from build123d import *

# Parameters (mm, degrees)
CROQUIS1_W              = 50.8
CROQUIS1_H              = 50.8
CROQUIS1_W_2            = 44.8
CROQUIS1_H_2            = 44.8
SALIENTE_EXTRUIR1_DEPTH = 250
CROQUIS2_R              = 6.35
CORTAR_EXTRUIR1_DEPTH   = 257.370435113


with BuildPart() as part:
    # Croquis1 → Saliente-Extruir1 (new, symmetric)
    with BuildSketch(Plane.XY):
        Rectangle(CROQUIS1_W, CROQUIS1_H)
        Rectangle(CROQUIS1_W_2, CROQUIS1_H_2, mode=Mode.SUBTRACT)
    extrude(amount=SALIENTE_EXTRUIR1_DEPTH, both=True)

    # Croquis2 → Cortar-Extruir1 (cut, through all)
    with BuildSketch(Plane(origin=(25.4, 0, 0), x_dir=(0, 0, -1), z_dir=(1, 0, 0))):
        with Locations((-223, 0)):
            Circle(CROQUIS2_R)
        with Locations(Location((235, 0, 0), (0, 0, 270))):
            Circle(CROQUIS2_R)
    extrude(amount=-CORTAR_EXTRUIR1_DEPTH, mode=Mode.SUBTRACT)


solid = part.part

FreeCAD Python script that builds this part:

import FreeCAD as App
import Part
import Sketcher
Q = App.Units.Quantity

doc = App.newDocument("Part")
body = doc.addObject("PartDesign::Body", "Body")

sketch1 = body.newObject("Sketcher::SketchObject", "Sketch")
sketch1.AttachmentSupport = (doc.getObject("XY_Plane"), [""])
sketch1.MapMode = "FlatFace"
sketch1.addGeometry(Part.LineSegment(App.Vector(-25, 25, 0), App.Vector(-25, -25, 0)), False)
sketch1.addGeometry(Part.LineSegment(App.Vector(-25, -25, 0), App.Vector(25, -25, 0)), False)
sketch1.addGeometry(Part.LineSegment(App.Vector(25, -25, 0), App.Vector(25, 25, 0)), False)
sketch1.addGeometry(Part.LineSegment(App.Vector(25, 25, 0), App.Vector(-25, 25, 0)), False)
sketch1.addGeometry(Part.LineSegment(App.Vector(22, -22, 0), App.Vector(-22, -22, 0)), False)
sketch1.addGeometry(Part.LineSegment(App.Vector(-22, -22, 0), App.Vector(-22, 22, 0)), False)
sketch1.addGeometry(Part.LineSegment(App.Vector(-22, 22, 0), App.Vector(22, 22, 0)), False)
sketch1.addGeometry(Part.LineSegment(App.Vector(22, 22, 0), App.Vector(22, -22, 0)), False)
sketch1.addConstraint(Sketcher.Constraint("Coincident", 0, 2, 1, 1))
sketch1.addConstraint(Sketcher.Constraint("Coincident", 1, 2, 2, 1))
sketch1.addConstraint(Sketcher.Constraint("Coincident", 2, 2, 3, 1))
sketch1.addConstraint(Sketcher.Constraint("Coincident", 3, 2, 0, 1))
sketch1.addConstraint(Sketcher.Constraint("Coincident", 4, 2, 5, 1))
sketch1.addConstraint(Sketcher.Constraint("Coincident", 5, 2, 6, 1))
sketch1.addConstraint(Sketcher.Constraint("Coincident", 6, 2, 7, 1))
sketch1.addConstraint(Sketcher.Constraint("Coincident", 7, 2, 4, 1))
sketch1.addConstraint(Sketcher.Constraint("Vertical", 0))
sketch1.addConstraint(Sketcher.Constraint("Horizontal", 1))
sketch1.addConstraint(Sketcher.Constraint("Vertical", 2))
sketch1.addConstraint(Sketcher.Constraint("Horizontal", 3))
sketch1.addConstraint(Sketcher.Constraint("Horizontal", 4))
sketch1.addConstraint(Sketcher.Constraint("Vertical", 5))
sketch1.addConstraint(Sketcher.Constraint("Horizontal", 6))
sketch1.addConstraint(Sketcher.Constraint("Vertical", 7))
sketch1.addConstraint(Sketcher.Constraint("Symmetric", 0, 2, 2, 2, -1, 1))
sketch1.addConstraint(Sketcher.Constraint("Symmetric", 4, 2, 6, 2, -1, 1))
sketch1.addConstraint(Sketcher.Constraint("Equal", 3, 0))
sketch1.addConstraint(Sketcher.Constraint("Equal", 6, 5))
sketch1.addConstraint(Sketcher.Constraint("DistanceX", 1, 1, 1, 2, Q("50.8 mm")))
sketch1.addConstraint(Sketcher.Constraint("DistanceX", 4, 2, 4, 1, Q("44.8 mm")))
pad1 = body.newObject("PartDesign::Pad", "Pad")
pad1.Profile = sketch1
pad1.Length = 500
pad1.Midplane = True

sketch2 = body.newObject("Sketcher::SketchObject", "Sketch001")
sketch2.AttachmentSupport = (doc.getObject("YZ_Plane"), [""])
sketch2.MapMode = "FlatFace"
sketch2.AttachmentOffset = App.Placement(App.Vector(0, 0, 25.4), App.Rotation())
sketch2.addGeometry(Part.Circle(App.Vector(0, 223, 0), App.Vector(0, 0, 1), 6), False)
sketch2.addGeometry(Part.Circle(App.Vector(0, -235, 0), App.Vector(0, 0, 1), 6), False)
sketch2.addConstraint(Sketcher.Constraint("Equal", 0, 1))
sketch2.addConstraint(Sketcher.Constraint("PointOnObject", 0, 3, -2))
sketch2.addConstraint(Sketcher.Constraint("PointOnObject", 1, 3, -2))
sketch2.addConstraint(Sketcher.Constraint("Diameter", 0, Q("12.7 mm")))
sketch2.addConstraint(Sketcher.Constraint("DistanceY", -1, 1, 0, 3, Q("223 mm")))
sketch2.addConstraint(Sketcher.Constraint("DistanceY", 1, 3, -1, 1, Q("235 mm")))
pocket1 = body.newObject("PartDesign::Pocket", "Pocket")
pocket1.Profile = sketch2
pocket1.Type = "ThroughAll"

doc.recompute()
